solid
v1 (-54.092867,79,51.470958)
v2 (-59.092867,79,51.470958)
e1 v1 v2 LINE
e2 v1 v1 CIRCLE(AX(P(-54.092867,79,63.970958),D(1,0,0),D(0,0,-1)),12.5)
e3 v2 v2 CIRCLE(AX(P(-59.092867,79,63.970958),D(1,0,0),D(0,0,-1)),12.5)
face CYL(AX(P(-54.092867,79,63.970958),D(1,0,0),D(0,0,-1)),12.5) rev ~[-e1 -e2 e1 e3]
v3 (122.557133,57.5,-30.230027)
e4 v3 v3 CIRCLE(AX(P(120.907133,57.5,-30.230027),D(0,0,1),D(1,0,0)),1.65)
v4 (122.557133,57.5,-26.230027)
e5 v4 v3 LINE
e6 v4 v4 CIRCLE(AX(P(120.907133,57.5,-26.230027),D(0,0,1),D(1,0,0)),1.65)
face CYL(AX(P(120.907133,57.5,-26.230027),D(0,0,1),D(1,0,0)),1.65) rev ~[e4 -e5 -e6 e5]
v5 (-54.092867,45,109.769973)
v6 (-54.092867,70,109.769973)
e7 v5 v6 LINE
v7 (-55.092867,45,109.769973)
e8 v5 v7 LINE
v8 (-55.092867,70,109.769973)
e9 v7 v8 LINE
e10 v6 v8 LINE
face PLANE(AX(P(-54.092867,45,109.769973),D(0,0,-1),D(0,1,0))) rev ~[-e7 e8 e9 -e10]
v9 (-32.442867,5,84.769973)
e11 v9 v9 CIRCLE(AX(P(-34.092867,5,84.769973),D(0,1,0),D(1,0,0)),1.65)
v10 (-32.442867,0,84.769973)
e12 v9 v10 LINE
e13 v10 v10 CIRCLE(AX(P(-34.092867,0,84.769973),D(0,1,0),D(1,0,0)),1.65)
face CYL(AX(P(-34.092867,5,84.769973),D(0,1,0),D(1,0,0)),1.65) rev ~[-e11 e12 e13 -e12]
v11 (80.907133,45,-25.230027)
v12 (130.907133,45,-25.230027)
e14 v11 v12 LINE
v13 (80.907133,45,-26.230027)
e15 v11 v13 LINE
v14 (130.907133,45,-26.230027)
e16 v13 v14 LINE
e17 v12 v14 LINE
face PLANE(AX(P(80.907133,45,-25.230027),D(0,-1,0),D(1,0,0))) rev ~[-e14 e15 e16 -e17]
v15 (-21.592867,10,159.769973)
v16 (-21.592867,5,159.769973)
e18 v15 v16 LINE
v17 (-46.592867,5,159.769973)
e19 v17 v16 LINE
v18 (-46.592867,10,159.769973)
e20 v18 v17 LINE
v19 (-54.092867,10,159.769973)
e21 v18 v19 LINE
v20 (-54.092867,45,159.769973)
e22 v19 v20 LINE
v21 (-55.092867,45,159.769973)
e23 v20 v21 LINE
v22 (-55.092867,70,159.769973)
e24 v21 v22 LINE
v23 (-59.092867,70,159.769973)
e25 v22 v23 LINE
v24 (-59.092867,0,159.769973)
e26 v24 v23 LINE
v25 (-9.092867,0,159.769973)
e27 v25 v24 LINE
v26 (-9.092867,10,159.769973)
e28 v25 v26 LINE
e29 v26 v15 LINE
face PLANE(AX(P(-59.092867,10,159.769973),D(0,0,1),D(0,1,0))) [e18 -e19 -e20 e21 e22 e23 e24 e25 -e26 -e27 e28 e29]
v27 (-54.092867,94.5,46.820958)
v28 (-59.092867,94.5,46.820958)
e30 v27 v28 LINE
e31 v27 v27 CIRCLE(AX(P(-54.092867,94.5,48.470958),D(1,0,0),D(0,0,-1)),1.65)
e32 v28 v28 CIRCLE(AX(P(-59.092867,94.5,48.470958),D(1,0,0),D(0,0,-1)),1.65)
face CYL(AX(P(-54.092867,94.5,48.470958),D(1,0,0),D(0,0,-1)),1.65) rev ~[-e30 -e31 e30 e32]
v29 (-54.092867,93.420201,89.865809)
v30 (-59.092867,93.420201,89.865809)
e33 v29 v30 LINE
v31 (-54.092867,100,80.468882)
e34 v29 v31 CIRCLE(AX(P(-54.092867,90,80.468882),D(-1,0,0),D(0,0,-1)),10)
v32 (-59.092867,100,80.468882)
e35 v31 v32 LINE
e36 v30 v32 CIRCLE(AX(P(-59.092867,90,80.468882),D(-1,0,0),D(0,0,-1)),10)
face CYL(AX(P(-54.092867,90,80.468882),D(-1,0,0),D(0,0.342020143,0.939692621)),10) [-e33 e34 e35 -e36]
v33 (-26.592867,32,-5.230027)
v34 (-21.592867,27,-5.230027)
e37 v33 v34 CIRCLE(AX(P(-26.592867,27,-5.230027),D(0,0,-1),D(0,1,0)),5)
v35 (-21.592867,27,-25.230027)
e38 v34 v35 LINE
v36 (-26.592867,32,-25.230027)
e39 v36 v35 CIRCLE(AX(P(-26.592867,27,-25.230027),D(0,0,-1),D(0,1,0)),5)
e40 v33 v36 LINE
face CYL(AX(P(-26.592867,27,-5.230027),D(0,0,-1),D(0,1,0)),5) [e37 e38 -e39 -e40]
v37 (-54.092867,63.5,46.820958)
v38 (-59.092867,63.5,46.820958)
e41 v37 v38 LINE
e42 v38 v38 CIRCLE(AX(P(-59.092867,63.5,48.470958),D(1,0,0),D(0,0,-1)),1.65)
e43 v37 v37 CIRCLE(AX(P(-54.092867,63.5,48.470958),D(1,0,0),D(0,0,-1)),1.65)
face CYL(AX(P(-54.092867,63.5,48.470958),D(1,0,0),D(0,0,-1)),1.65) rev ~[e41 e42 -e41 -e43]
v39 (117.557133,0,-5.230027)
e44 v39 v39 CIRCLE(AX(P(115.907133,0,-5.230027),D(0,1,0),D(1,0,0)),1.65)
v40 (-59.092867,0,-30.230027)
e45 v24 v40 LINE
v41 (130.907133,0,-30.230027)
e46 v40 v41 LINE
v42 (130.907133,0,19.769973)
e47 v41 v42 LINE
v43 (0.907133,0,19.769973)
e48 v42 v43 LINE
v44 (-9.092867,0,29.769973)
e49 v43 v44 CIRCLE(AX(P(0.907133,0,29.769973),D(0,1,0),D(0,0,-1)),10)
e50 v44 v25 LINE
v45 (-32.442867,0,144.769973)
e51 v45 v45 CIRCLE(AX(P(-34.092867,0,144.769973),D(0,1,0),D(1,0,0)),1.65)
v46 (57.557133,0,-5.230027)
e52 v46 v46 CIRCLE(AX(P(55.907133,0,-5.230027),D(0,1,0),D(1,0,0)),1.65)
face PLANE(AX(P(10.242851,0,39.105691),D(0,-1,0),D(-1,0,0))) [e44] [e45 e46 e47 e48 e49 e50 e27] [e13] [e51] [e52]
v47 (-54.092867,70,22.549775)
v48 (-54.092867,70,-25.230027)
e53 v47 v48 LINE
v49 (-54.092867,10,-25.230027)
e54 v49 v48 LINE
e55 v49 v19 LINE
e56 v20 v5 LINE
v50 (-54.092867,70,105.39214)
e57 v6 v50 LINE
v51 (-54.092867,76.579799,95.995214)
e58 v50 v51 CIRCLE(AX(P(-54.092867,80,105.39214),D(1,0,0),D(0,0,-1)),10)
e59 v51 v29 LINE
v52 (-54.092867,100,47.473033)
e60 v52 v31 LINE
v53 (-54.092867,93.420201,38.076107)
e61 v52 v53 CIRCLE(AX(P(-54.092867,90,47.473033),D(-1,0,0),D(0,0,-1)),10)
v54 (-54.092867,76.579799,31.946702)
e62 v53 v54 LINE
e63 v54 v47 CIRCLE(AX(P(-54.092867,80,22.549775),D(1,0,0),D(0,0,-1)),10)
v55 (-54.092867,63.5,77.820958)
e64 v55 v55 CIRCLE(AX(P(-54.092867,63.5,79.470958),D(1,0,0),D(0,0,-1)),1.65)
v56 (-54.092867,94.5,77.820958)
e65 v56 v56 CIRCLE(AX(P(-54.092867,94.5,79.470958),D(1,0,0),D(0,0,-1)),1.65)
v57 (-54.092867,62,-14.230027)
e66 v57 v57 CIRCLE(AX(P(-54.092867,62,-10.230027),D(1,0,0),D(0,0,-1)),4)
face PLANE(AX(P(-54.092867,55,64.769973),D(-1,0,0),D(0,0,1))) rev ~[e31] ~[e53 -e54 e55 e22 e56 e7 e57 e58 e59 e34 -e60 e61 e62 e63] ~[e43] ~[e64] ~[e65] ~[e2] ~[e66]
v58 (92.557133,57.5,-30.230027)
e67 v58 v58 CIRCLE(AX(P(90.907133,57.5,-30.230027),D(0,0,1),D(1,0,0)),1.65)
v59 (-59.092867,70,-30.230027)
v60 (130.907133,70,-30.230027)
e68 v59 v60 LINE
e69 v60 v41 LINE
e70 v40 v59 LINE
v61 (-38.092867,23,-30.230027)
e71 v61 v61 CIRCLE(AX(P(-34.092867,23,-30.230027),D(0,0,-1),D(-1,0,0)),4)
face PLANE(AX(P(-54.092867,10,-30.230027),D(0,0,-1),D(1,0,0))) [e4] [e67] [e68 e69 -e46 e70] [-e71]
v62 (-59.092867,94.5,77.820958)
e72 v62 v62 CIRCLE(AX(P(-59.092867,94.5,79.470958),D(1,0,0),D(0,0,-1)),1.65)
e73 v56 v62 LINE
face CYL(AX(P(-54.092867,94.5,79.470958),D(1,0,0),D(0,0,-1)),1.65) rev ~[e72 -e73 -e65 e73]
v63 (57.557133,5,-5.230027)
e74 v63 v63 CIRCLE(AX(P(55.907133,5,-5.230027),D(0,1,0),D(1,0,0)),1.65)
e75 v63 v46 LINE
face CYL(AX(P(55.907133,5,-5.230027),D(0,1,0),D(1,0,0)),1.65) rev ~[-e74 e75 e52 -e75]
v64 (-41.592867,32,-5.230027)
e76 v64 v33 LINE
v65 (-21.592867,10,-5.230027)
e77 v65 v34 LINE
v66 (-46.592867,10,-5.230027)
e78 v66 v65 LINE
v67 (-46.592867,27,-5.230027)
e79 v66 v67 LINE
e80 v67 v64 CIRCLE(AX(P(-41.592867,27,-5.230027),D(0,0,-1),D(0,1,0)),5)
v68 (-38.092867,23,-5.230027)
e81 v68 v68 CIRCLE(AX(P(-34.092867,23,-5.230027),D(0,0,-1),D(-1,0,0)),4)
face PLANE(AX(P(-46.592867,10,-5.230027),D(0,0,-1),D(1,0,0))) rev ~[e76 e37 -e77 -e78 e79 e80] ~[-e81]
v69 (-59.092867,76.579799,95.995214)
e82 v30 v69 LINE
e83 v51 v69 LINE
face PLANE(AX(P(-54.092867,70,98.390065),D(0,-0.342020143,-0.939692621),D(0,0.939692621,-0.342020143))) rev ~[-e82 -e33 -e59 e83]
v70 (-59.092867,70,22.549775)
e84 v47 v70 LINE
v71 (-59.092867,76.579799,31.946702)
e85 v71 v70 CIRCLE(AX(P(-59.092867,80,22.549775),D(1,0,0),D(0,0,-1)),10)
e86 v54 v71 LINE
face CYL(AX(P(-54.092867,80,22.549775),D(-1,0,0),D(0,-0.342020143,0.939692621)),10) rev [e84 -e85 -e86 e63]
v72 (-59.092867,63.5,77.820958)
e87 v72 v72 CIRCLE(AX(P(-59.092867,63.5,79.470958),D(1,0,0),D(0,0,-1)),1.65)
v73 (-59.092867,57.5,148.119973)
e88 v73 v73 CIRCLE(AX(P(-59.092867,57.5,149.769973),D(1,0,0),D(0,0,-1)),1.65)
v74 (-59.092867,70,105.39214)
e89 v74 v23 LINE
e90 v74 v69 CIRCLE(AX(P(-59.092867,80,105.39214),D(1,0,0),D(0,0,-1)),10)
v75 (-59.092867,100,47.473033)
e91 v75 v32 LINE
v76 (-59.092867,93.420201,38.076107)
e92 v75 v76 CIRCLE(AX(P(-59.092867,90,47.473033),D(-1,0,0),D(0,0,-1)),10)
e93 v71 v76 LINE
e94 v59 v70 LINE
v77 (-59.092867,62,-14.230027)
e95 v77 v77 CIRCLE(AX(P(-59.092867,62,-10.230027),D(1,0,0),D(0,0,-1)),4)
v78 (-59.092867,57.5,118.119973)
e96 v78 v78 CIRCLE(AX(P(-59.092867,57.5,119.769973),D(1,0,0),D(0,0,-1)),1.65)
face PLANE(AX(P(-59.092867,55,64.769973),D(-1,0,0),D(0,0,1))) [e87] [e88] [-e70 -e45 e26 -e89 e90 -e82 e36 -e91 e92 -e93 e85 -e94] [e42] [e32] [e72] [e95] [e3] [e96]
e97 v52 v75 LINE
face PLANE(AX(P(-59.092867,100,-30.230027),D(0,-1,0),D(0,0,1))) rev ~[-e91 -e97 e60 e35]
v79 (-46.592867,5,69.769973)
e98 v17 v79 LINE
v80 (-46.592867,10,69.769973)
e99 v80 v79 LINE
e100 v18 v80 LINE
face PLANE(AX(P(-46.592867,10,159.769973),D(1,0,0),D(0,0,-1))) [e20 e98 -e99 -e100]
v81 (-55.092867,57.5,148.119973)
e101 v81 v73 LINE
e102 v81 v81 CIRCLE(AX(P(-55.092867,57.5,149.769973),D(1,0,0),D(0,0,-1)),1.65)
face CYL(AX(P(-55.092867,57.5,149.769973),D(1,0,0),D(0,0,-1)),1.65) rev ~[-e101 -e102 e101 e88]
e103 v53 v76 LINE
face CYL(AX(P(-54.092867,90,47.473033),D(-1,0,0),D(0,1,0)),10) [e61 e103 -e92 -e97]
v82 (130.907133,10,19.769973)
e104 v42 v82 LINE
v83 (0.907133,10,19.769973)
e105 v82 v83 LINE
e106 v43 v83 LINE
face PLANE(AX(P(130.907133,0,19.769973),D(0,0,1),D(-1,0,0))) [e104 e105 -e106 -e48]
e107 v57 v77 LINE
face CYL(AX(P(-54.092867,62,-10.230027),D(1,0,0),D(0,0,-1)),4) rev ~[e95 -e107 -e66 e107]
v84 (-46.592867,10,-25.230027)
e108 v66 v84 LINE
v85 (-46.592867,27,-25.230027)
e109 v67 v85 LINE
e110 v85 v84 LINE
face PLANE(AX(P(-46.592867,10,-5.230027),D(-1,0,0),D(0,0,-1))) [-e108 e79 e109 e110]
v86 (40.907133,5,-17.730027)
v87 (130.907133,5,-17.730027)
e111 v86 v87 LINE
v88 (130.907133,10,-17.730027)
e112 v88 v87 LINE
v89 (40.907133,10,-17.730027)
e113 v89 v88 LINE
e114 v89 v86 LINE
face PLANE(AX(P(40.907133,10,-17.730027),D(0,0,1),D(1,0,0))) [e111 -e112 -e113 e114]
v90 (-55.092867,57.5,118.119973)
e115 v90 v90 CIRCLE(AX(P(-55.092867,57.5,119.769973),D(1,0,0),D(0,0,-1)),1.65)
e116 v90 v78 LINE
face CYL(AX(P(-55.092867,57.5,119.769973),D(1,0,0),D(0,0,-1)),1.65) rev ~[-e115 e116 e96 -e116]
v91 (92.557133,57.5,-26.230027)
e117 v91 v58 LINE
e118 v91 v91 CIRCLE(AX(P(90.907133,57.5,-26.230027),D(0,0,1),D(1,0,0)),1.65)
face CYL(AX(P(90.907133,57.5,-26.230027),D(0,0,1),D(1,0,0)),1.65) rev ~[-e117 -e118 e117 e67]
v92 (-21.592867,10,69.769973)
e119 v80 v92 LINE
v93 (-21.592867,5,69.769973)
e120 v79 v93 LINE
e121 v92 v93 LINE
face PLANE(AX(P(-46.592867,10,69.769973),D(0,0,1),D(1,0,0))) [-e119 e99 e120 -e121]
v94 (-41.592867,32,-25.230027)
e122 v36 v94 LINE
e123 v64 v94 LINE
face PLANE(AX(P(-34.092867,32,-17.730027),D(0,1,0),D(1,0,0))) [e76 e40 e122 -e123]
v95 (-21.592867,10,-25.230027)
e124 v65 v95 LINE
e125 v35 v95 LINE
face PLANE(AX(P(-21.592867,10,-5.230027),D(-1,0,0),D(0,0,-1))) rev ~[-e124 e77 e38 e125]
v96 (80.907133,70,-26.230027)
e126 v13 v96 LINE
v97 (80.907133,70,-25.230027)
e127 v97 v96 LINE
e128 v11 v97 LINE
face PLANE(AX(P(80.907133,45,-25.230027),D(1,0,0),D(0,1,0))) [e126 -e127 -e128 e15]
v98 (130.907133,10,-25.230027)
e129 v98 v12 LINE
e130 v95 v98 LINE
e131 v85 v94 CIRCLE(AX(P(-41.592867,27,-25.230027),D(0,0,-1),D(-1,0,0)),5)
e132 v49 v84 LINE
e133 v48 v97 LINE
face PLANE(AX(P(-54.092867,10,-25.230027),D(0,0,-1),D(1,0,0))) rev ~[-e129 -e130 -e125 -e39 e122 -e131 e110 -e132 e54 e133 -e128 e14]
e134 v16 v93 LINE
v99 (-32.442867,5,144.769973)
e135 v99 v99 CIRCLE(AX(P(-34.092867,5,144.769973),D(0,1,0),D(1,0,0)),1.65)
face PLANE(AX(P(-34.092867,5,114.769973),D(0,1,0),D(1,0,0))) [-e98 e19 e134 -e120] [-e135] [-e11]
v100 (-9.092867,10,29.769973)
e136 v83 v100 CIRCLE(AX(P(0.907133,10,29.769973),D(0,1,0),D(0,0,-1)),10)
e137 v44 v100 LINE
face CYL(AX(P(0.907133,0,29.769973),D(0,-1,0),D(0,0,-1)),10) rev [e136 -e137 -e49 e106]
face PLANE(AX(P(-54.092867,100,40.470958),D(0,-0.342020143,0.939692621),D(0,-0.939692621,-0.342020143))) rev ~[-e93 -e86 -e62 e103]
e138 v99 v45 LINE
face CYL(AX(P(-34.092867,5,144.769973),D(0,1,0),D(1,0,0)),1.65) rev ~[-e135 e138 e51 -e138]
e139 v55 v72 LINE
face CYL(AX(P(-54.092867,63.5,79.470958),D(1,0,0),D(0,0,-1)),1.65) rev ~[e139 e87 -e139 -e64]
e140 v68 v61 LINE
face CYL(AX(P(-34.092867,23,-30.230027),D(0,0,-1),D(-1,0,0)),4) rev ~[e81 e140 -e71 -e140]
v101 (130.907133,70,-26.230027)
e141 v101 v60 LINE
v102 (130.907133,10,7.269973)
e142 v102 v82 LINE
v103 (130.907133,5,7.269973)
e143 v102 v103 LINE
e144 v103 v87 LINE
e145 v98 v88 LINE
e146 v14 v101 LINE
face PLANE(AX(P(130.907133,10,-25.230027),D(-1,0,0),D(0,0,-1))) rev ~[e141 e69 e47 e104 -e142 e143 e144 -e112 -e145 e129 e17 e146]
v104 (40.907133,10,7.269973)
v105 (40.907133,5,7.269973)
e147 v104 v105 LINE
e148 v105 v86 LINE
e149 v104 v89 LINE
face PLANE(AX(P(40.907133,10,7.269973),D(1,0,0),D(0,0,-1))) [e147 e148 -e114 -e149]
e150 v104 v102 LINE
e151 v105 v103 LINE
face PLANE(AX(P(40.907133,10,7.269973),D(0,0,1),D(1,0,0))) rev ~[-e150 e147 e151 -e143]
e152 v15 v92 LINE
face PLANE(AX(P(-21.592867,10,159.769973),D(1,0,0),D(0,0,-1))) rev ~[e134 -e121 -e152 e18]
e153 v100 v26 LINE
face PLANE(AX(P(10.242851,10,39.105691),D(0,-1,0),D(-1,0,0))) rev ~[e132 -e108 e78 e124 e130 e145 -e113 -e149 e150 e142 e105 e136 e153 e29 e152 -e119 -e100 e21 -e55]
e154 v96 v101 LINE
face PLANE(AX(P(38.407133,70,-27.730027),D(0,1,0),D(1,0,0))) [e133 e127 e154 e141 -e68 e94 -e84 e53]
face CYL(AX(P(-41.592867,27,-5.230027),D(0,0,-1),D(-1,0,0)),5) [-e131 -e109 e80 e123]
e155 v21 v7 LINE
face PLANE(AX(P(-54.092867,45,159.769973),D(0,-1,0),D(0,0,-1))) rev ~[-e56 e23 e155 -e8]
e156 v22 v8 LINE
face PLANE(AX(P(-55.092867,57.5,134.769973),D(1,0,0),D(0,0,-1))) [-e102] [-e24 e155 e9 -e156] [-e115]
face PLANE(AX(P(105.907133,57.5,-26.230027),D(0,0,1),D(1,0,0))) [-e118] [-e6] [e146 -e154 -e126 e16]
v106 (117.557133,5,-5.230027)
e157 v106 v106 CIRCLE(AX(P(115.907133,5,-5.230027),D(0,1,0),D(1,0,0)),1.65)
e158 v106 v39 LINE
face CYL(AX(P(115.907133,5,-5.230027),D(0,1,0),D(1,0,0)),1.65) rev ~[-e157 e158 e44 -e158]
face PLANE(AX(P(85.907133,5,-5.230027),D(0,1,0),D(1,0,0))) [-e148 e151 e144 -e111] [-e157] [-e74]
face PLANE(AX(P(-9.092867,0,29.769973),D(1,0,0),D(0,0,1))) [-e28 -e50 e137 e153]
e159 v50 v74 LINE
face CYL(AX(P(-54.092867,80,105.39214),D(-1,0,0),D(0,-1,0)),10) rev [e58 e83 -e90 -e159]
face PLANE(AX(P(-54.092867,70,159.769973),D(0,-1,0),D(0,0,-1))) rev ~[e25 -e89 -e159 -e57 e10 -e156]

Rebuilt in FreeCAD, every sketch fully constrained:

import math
import FreeCAD as App
import Part
import Sketcher
Q = App.Units.Quantity


def edges_at(feature, points):
    """Names of the edges that pass closest to the given points."""
    edges = feature.Shape.Edges
    near = lambda p: min(range(len(edges)), key=lambda i: edges[i].distToShape(Part.Vertex(*p))[0])
    return sorted({f"Edge{near(p) + 1}" for p in points})

doc = App.newDocument("Part")
params = doc.addObject("Spreadsheet::Sheet", "Params")
for row, (alias, value) in enumerate([
    ("sketch1_radius", "10 mm"),
    ("sketch1_width", "190 mm"),
    ("sketch1_width2", "50 mm"),
    ("pad1_length", "10 mm"),
    ("sketch2_width", "90 mm"),
    ("sketch2_width2", "25 mm"),
    ("pocket1_length", "5 mm"),
    ("sketch3_diameter", "3.3 mm"),
    ("sketch4_width", "25 mm"),
    ("pad2_length", "22 mm"),
    ("sketch5_diameter", "8 mm"),
    ("fillet_radius", "5 mm"),
    ("sketch6_width", "90 mm"),
    ("sketch6_height", "190 mm"),
    ("pad3_length", "5 mm"),
    ("sketch7_diameter", "8 mm"),
    ("sketch7_diameter2", "25 mm"),
    ("sketch7_diameter3", "3.3 mm"),
    ("sketch8_width", "185 mm"),
    ("sketch8_height", "5 mm"),
    ("pad4_length", "60 mm"),
    ("sketch9_diameter", "8 mm"),
    ("sketch10_width", "30 mm"),
    ("fillet2_radius", "10 mm"),
    ("sketch11_width", "50 mm"),
    ("sketch11_height", "25 mm"),
    ("pocket7_length", "1 mm"),
    ("sketch12_diameter", "3.3 mm"),
    ("sketch13_width", "25 mm"),
    ("sketch13_height", "50 mm"),
    ("pocket9_length", "1 mm"),
    ("sketch14_diameter", "3.3 mm"),
], start=1):
    params.set(f"A{row}", alias)
    params.set(f"B{row}", "=" + value)
    params.setAlias(f"B{row}", alias)

body = doc.addObject("PartDesign::Body", "Body")

# Sketch on XZ plane
sketch1 = body.newObject("Sketcher::SketchObject", "Sketch")
sketch1.AttachmentSupport = (doc.getObject("XZ_Plane"), [""])
sketch1.MapMode = "FlatFace"
sketch1.addGeometry([
    Part.LineSegment(App.Vector(131, -30, 0), App.Vector(-59, -30, 0)),  # 0
    Part.LineSegment(App.Vector(-59, -30, 0), App.Vector(-59, 160, 0)),  # 1
    Part.LineSegment(App.Vector(-59, 160, 0), App.Vector(-9, 160, 0)),  # 2
    Part.LineSegment(App.Vector(-9, 160, 0), App.Vector(-9, 30, 0)),  # 3
    Part.ArcOfCircle(Part.Circle(App.Vector(1, 30, 0), App.Vector(0, 0, 1), 10), math.radians(-180), math.radians(-90)),  # 4
    Part.LineSegment(App.Vector(1, 20, 0), App.Vector(131, 20, 0)),  # 5
    Part.LineSegment(App.Vector(131, 20, 0), App.Vector(131, -30, 0)),  # 6
], False)
sketch1.addConstraint([
    Sketcher.Constraint("Coincident", 0, 2, 1, 1),
    Sketcher.Constraint("Coincident", 1, 2, 2, 1),
    Sketcher.Constraint("Coincident", 2, 2, 3, 1),
    Sketcher.Constraint("Tangent", 3, 2, 4, 1),
    Sketcher.Constraint("Tangent", 4, 2, 5, 1),
    Sketcher.Constraint("Coincident", 5, 2, 6, 1),
    Sketcher.Constraint("Coincident", 6, 2, 0, 1),
    Sketcher.Constraint("Horizontal", 0),
    Sketcher.Constraint("Vertical", 1),
    Sketcher.Constraint("Horizontal", 2),
    Sketcher.Constraint("Vertical", 3),
    Sketcher.Constraint("Horizontal", 5),
    Sketcher.Constraint("Vertical", 6),
    Sketcher.Constraint("Equal", 0, 1),
    Sketcher.Constraint("Equal", 5, 3),
    Sketcher.Constraint("Radius", 4, Q("10 mm")),
    Sketcher.Constraint("DistanceX", 0, 2, 0, 1, Q("190 mm")),
    Sketcher.Constraint("DistanceX", 2, 1, 2, 2, Q("50 mm")),
    Sketcher.Constraint("DistanceX", -1, 1, 4, 3, Q("0.907133 mm")),
    Sketcher.Constraint("DistanceY", -1, 1, 4, 3, Q("29.769973 mm")),
])
sketch1.setExpression("Constraints[15]", "Params.sketch1_radius")
sketch1.setExpression("Constraints[16]", "Params.sketch1_width")
sketch1.setExpression("Constraints[17]", "Params.sketch1_width2")
pad1 = body.newObject("PartDesign::Pad", "Pad")
pad1.Profile = sketch1
pad1.setExpression("Length", "Params.pad1_length")
pad1.Reversed = True

# Sketch on XZ plane
sketch2 = body.newObject("Sketcher::SketchObject", "Sketch001")
sketch2.AttachmentSupport = (doc.getObject("XZ_Plane"), [""])
sketch2.MapMode = "FlatFace"
sketch2.AttachmentOffset = App.Placement(App.Vector(0, 0, -10), App.Rotation())
sketch2.addGeometry([
    Part.LineSegment(App.Vector(41, -18, 0), App.Vector(41, 7, 0)),  # 0
    Part.LineSegment(App.Vector(41, 7, 0), App.Vector(131, 7, 0)),  # 1
    Part.LineSegment(App.Vector(131, 7, 0), App.Vector(131, -18, 0)),  # 2
    Part.LineSegment(App.Vector(131, -18, 0), App.Vector(41, -18, 0)),  # 3
    Part.LineSegment(App.Vector(-47, 70, 0), App.Vector(-47, 160, 0)),  # 4
    Part.LineSegment(App.Vector(-47, 160, 0), App.Vector(-22, 160, 0)),  # 5
    Part.LineSegment(App.Vector(-22, 160, 0), App.Vector(-22, 70, 0)),  # 6
    Part.LineSegment(App.Vector(-22, 70, 0), App.Vector(-47, 70, 0)),  # 7
], False)
sketch2.addConstraint([
    Sketcher.Constraint("Coincident", 0, 2, 1, 1),
    Sketcher.Constraint("Coincident", 1, 2, 2, 1),
    Sketcher.Constraint("Coincident", 2, 2, 3, 1),
    Sketcher.Constraint("Coincident", 3, 2, 0, 1),
    Sketcher.Constraint("Coincident", 4, 2, 5, 1),
    Sketcher.Constraint("Coincident", 5, 2, 6, 1),
    Sketcher.Constraint("Coincident", 6, 2, 7, 1),
    Sketcher.Constraint("Coincident", 7, 2, 4, 1),
    Sketcher.Constraint("Vertical", 0),
    Sketcher.Constraint("Horizontal", 1),
    Sketcher.Constraint("Vertical", 2),
    Sketcher.Constraint("Horizontal", 3),
    Sketcher.Constraint("Vertical", 4),
    Sketcher.Constraint("Horizontal", 5),
    Sketcher.Constraint("Vertical", 6),
    Sketcher.Constraint("Horizontal", 7),
    Sketcher.Constraint("Equal", 7, 0),
    Sketcher.Constraint("Equal", 3, 4),
    Sketcher.Constraint("DistanceX", 1, 1, 1, 2, Q("90 mm")),
    Sketcher.Constraint("DistanceX", 5, 1, 5, 2, Q("25 mm")),
    Sketcher.Constraint("DistanceX", 4, 2, 0, 2, Q("87.5 mm")),
    Sketcher.Constraint("DistanceY", 0, 2, 4, 2, Q("152.5 mm")),
    Sketcher.Constraint("DistanceX", -1, 1, 0, 2, Q("40.907133 mm")),
    Sketcher.Constraint("DistanceY", -1, 1, 0, 2, Q("7.269973 mm")),
])
sketch2.setExpression("Constraints[18]", "Params.sketch2_width")
sketch2.setExpression("Constraints[19]", "Params.sketch2_width2")
pocket1 = body.newObject("PartDesign::Pocket", "Pocket")
pocket1.Profile = sketch2
pocket1.setExpression("Length", "Params.pocket1_length")
pocket1.Reversed = True

# Sketch on XZ plane
sketch3 = body.newObject("Sketcher::SketchObject", "Sketch002")
sketch3.AttachmentSupport = (doc.getObject("XZ_Plane"), [""])
sketch3.MapMode = "FlatFace"
sketch3.AttachmentOffset = App.Placement(App.Vector(0, 0, -5), App.Rotation())
sketch3.addGeometry([
    Part.Circle(App.Vector(55.9, -5.2, 0), App.Vector(0, 0, 1), 1.6),
    Part.Circle(App.Vector(115.9, -5.2, 0), App.Vector(0, 0, 1), 1.6),
    Part.Circle(App.Vector(-34.1, 84.8, 0), App.Vector(0, 0, 1), 1.6),
    Part.Circle(App.Vector(-34.1, 144.8, 0), App.Vector(0, 0, 1), 1.6),
], False)
sketch3.addConstraint([
    Sketcher.Constraint("Equal", 0, 1),
    Sketcher.Constraint("Equal", 1, 2),
    Sketcher.Constraint("Equal", 2, 3),
    Sketcher.Constraint("Horizontal", 0, 3, 1, 3),
    Sketcher.Constraint("Vertical", 2, 3, 3, 3),
    Sketcher.Constraint("Diameter", 0, Q("3.3 mm")),
    Sketcher.Constraint("DistanceX", 0, 3, 1, 3, Q("60 mm")),
    Sketcher.Constraint("DistanceX", 2, 3, 0, 3, Q("90 mm")),
    Sketcher.Constraint("DistanceY", 0, 3, 2, 3, Q("90 mm")),
    Sketcher.Constraint("DistanceY", 2, 3, 3, 3, Q("60 mm")),
    Sketcher.Constraint("DistanceX", -1, 1, 0, 3, Q("55.907133 mm")),
    Sketcher.Constraint("DistanceY", 0, 3, -1, 1, Q("5.230027 mm")),
])
sketch3.setExpression("Constraints[5]", "Params.sketch3_diameter")
pocket2 = body.newObject("PartDesign::Pocket", "Pocket001")
pocket2.Profile = sketch3
pocket2.Type = "ThroughAll"
pocket2.Reversed = True

# Sketch on XZ plane
sketch4 = body.newObject("Sketcher::SketchObject", "Sketch003")
sketch4.AttachmentSupport = (doc.getObject("XZ_Plane"), [""])
sketch4.MapMode = "FlatFace"
sketch4.AttachmentOffset = App.Placement(App.Vector(0, 0, -10), App.Rotation())
sketch4.addGeometry([
    Part.LineSegment(App.Vector(-47, -30, 0), App.Vector(-47, -5, 0)),
    Part.LineSegment(App.Vector(-47, -5, 0), App.Vector(-22, -5, 0)),
    Part.LineSegment(App.Vector(-22, -5, 0), App.Vector(-22, -30, 0)),
    Part.LineSegment(App.Vector(-22, -30, 0), App.Vector(-47, -30, 0)),
], False)
sketch4.addConstraint([
    Sketcher.Constraint("Coincident", 0, 2, 1, 1),
    Sketcher.Constraint("Coincident", 1, 2, 2, 1),
    Sketcher.Constraint("Coincident", 2, 2, 3, 1),
    Sketcher.Constraint("Coincident", 3, 2, 0, 1),
    Sketcher.Constraint("Vertical", 0),
    Sketcher.Constraint("Horizontal", 1),
    Sketcher.Constraint("Vertical", 2),
    Sketcher.Constraint("Horizontal", 3),
    Sketcher.Constraint("Equal", 3, 0),
    Sketcher.Constraint("DistanceX", 1, 1, 1, 2, Q("25 mm")),
    Sketcher.Constraint("DistanceX", 0, 2, -1, 1, Q("46.592867 mm")),
    Sketcher.Constraint("DistanceY", 0, 2, -1, 1, Q("5.230027 mm")),
])
sketch4.setExpression("Constraints[9]", "Params.sketch4_width")
pad2 = body.newObject("PartDesign::Pad", "Pad001")
pad2.Profile = sketch4
pad2.setExpression("Length", "Params.pad2_length")
pad2.Reversed = True

# Sketch on XY plane
sketch5 = body.newObject("Sketcher::SketchObject", "Sketch004")
sketch5.AttachmentSupport = (doc.getObject("XY_Plane"), [""])
sketch5.MapMode = "FlatFace"
sketch5.AttachmentOffset = App.Placement(App.Vector(0, 0, -30.230027), App.Rotation())
sketch5.addGeometry(Part.Circle(App.Vector(-34.1, 23, 0), App.Vector(0, 0, 1), 4), False)
sketch5.addConstraint([
    Sketcher.Constraint("Diameter", 0, Q("8 mm")),
    Sketcher.Constraint("DistanceY", -1, 1, 0, 3, Q("23 mm")),
    Sketcher.Constraint("DistanceX", 0, 3, -1, 1, Q("34.092867 mm")),
])
sketch5.setExpression("Constraints[0]", "Params.sketch5_diameter")
pocket3 = body.newObject("PartDesign::Pocket", "Pocket002")
pocket3.Profile = sketch5
pocket3.Type = "ThroughAll"
pocket3.Reversed = True
doc.recompute()

fillet = body.newObject("PartDesign::Fillet", "Fillet")
fillet.Base = (pocket3, edges_at(pocket3, [(-46.593, 32, -17.73), (-21.593, 32, -17.73)]))
fillet.setExpression("Radius", "Params.fillet_radius")

# Sketch on YZ plane
sketch6 = body.newObject("Sketcher::SketchObject", "Sketch005")
sketch6.AttachmentSupport = (doc.getObject("YZ_Plane"), [""])
sketch6.MapMode = "FlatFace"
sketch6.AttachmentOffset = App.Placement(App.Vector(0, 0, -59.092867), App.Rotation())
sketch6.addGeometry([
    Part.LineSegment(App.Vector(100, -30, 0), App.Vector(10, -30, 0)),
    Part.LineSegment(App.Vector(10, -30, 0), App.Vector(10, 160, 0)),
    Part.LineSegment(App.Vector(10, 160, 0), App.Vector(100, 160, 0)),
    Part.LineSegment(App.Vector(100, 160, 0), App.Vector(100, -30, 0)),
], False)
sketch6.addConstraint([
    Sketcher.Constraint("Coincident", 0, 2, 1, 1),
    Sketcher.Constraint("Coincident", 1, 2, 2, 1),
    Sketcher.Constraint("Coincident", 2, 2, 3, 1),
    Sketcher.Constraint("Coincident", 3, 2, 0, 1),
    Sketcher.Constraint("Horizontal", 0),
    Sketcher.Constraint("Vertical", 1),
    Sketcher.Constraint("Horizontal", 2),
    Sketcher.Constraint("Vertical", 3),
    Sketcher.Constraint("DistanceX", 0, 2, 0, 1, Q("90 mm")),
    Sketcher.Constraint("DistanceY", 1, 1, 1, 2, Q("190 mm")),
    Sketcher.Constraint("DistanceX", -1, 1, 0, 2, Q("10 mm")),
    Sketcher.Constraint("DistanceY", 0, 2, -1, 1, Q("30.230027 mm")),
])
sketch6.setExpression("Constraints[8]", "Params.sketch6_width")
sketch6.setExpression("Constraints[9]", "Params.sketch6_height")
pad3 = body.newObject("PartDesign::Pad", "Pad002")
pad3.Profile = sketch6
pad3.setExpression("Length", "Params.pad3_length")

# Sketch on YZ plane
sketch7 = body.newObject("Sketcher::SketchObject", "Sketch006")
sketch7.AttachmentSupport = (doc.getObject("YZ_Plane"), [""])
sketch7.MapMode = "FlatFace"
sketch7.AttachmentOffset = App.Placement(App.Vector(0, 0, -54.092867), App.Rotation())
sketch7.addGeometry([
    Part.Circle(App.Vector(62, -10.2, 0), App.Vector(0, 0, 1), 4),  # 0
    Part.Circle(App.Vector(79, 64, 0), App.Vector(0, 0, 1), 12.5),  # 1
    Part.Circle(App.Vector(94.5, 79.5, 0), App.Vector(0, 0, 1), 1.6),  # 2
    Part.Circle(App.Vector(94.5, 48.5, 0), App.Vector(0, 0, 1), 1.6),  # 3
    Part.Circle(App.Vector(63.5, 48.5, 0), App.Vector(0, 0, 1), 1.6),  # 4
    Part.Circle(App.Vector(63.5, 79.5, 0), App.Vector(0, 0, 1), 1.6),  # 5
], False)
sketch7.addConstraint([
    Sketcher.Constraint("Equal", 2, 3),
    Sketcher.Constraint("Equal", 3, 4),
    Sketcher.Constraint("Equal", 4, 5),
    Sketcher.Constraint("Horizontal", 3, 3, 4, 3),
    Sketcher.Constraint("Horizontal", 2, 3, 5, 3),
    Sketcher.Constraint("Vertical", 2, 3, 3, 3),
    Sketcher.Constraint("Vertical", 4, 3, 5, 3),
    Sketcher.Constraint("Diameter", 0, Q("8 mm")),
    Sketcher.Constraint("Diameter", 1, Q("25 mm")),
    Sketcher.Constraint("Diameter", 2, Q("3.3 mm")),
    Sketcher.Constraint("DistanceX", -1, 1, 0, 3, Q("62 mm")),
    Sketcher.Constraint("DistanceX", -1, 1, 1, 3, Q("79 mm")),
    Sketcher.Constraint("DistanceY", 3, 3, 2, 3, Q("31 mm")),
    Sketcher.Constraint("DistanceX", 4, 3, 3, 3, Q("31 mm")),
    Sketcher.Constraint("DistanceX", -1, 1, 2, 3, Q("94.5 mm")),
    Sketcher.Constraint("DistanceY", 1, 3, 2, 3, Q("15.5 mm")),
    Sketcher.Constraint("DistanceY", 0, 3, -1, 1, Q("10.230027 mm")),
    Sketcher.Constraint("DistanceY", -1, 1, 1, 3, Q("63.970958 mm")),
])
sketch7.setExpression("Constraints[7]", "Params.sketch7_diameter")
sketch7.setExpression("Constraints[8]", "Params.sketch7_diameter2")
sketch7.setExpression("Constraints[9]", "Params.sketch7_diameter3")
pocket4 = body.newObject("PartDesign::Pocket", "Pocket003")
pocket4.Profile = sketch7
pocket4.Type = "ThroughAll"

# Sketch on XZ plane
sketch8 = body.newObject("Sketcher::SketchObject", "Sketch007")
sketch8.AttachmentSupport = (doc.getObject("XZ_Plane"), [""])
sketch8.MapMode = "FlatFace"
sketch8.AttachmentOffset = App.Placement(App.Vector(0, 0, -10), App.Rotation())
sketch8.addGeometry([
    Part.LineSegment(App.Vector(-54, -30, 0), App.Vector(-54, -25, 0)),
    Part.LineSegment(App.Vector(-54, -25, 0), App.Vector(131, -25, 0)),
    Part.LineSegment(App.Vector(131, -25, 0), App.Vector(131, -30, 0)),
    Part.LineSegment(App.Vector(131, -30, 0), App.Vector(-54, -30, 0)),
], False)
sketch8.addConstraint([
    Sketcher.Constraint("Coincident", 0, 2, 1, 1),
    Sketcher.Constraint("Coincident", 1, 2, 2, 1),
    Sketcher.Constraint("Coincident", 2, 2, 3, 1),
    Sketcher.Constraint("Coincident", 3, 2, 0, 1),
    Sketcher.Constraint("Vertical", 0),
    Sketcher.Constraint("Horizontal", 1),
    Sketcher.Constraint("Vertical", 2),
    Sketcher.Constraint("Horizontal", 3),
    Sketcher.Constraint("DistanceX", 1, 1, 1, 2, Q("185 mm")),
    Sketcher.Constraint("DistanceY", 0, 1, 0, 2, Q("5 mm")),
    Sketcher.Constraint("DistanceX", 0, 2, -1, 1, Q("54.092867 mm")),
    Sketcher.Constraint("DistanceY", 0, 2, -1, 1, Q("25.230027 mm")),
])
sketch8.setExpression("Constraints[8]", "Params.sketch8_width")
sketch8.setExpression("Constraints[9]", "Params.sketch8_height")
pad4 = body.newObject("PartDesign::Pad", "Pad003")
pad4.Profile = sketch8
pad4.setExpression("Length", "Params.pad4_length")
pad4.Reversed = True

# Sketch on XY plane
sketch9 = body.newObject("Sketcher::SketchObject", "Sketch008")
sketch9.AttachmentSupport = (doc.getObject("XY_Plane"), [""])
sketch9.MapMode = "FlatFace"
sketch9.AttachmentOffset = App.Placement(App.Vector(0, 0, -30.230027), App.Rotation())
sketch9.addGeometry(Part.Circle(App.Vector(-34.1, 23, 0), App.Vector(0, 0, 1), 4), False)
sketch9.addConstraint([
    Sketcher.Constraint("Diameter", 0, Q("8 mm")),
    Sketcher.Constraint("DistanceY", -1, 1, 0, 3, Q("23 mm")),
    Sketcher.Constraint("DistanceX", 0, 3, -1, 1, Q("34.092867 mm")),
])
sketch9.setExpression("Constraints[0]", "Params.sketch9_diameter")
pocket5 = body.newObject("PartDesign::Pocket", "Pocket004")
pocket5.Profile = sketch9
pocket5.Type = "ThroughAll"
pocket5.Reversed = True

# Sketch on YZ plane
sketch10 = body.newObject("Sketcher::SketchObject", "Sketch009")
sketch10.AttachmentSupport = (doc.getObject("YZ_Plane"), [""])
sketch10.MapMode = "FlatFace"
sketch10.AttachmentOffset = App.Placement(App.Vector(0, 0, -54.092867), App.Rotation())
sketch10.addGeometry([
    Part.LineSegment(App.Vector(70, 160, 0), App.Vector(70, 98, 0)),  # 0
    Part.LineSegment(App.Vector(70, 98, 0), App.Vector(100, 87, 0)),  # 1
    Part.LineSegment(App.Vector(100, 87, 0), App.Vector(100, 160, 0)),  # 2
    Part.LineSegment(App.Vector(100, 160, 0), App.Vector(70, 160, 0)),  # 3
    Part.LineSegment(App.Vector(100, 40, 0), App.Vector(70, 30, 0)),  # 4
    Part.LineSegment(App.Vector(70, 30, 0), App.Vector(70, -30, 0)),  # 5
    Part.LineSegment(App.Vector(70, -30, 0), App.Vector(100, -30, 0)),  # 6
    Part.LineSegment(App.Vector(100, -30, 0), App.Vector(100, 40, 0)),  # 7
], False)
sketch10.addConstraint([
    Sketcher.Constraint("Coincident", 0, 2, 1, 1),
    Sketcher.Constraint("Coincident", 1, 2, 2, 1),
    Sketcher.Constraint("Coincident", 2, 2, 3, 1),
    Sketcher.Constraint("Coincident", 3, 2, 0, 1),
    Sketcher.Constraint("Coincident", 4, 2, 5, 1),
    Sketcher.Constraint("Coincident", 5, 2, 6, 1),
    Sketcher.Constraint("Coincident", 6, 2, 7, 1),
    Sketcher.Constraint("Coincident", 7, 2, 4, 1),
    Sketcher.Constraint("Vertical", 0),
    Sketcher.Constraint("Vertical", 2),
    Sketcher.Constraint("Horizontal", 3),
    Sketcher.Constraint("Vertical", 5),
    Sketcher.Constraint("Horizontal", 6),
    Sketcher.Constraint("Vertical", 7),
    Sketcher.Constraint("Vertical", 3, 2, 4, 2),
    Sketcher.Constraint("Vertical", 2, 2, 6, 2),
    Sketcher.Constraint("Equal", 1, 4),
    Sketcher.Constraint("DistanceX", 3, 2, 3, 1, Q("30 mm")),
    Sketcher.Constraint("Angle", 1, Q("-20 deg")),
    Sketcher.Constraint("DistanceX", -1, 1, 0, 2, Q("70 mm")),
    Sketcher.Constraint("DistanceY", 5, 2, 3, 2, Q("190 mm")),
    Sketcher.Constraint("DistanceY", 7, 2, 1, 2, Q("47 mm")),
    Sketcher.Constraint("DistanceY", 5, 2, 5, 1, Q("59.781878 mm")),
    Sketcher.Constraint("DistanceY", -1, 1, 4, 2, Q("29.551851 mm")),
])
sketch10.setExpression("Constraints[17]", "Params.sketch10_width")
pocket6 = body.newObject("PartDesign::Pocket", "Pocket005")
pocket6.Profile = sketch10
pocket6.Type = "ThroughAll"
doc.recompute()

fillet2 = body.newObject("PartDesign::Fillet", "Fillet001")
fillet2.Base = (pocket6, edges_at(pocket6, [
    (-56.593, 100, 87.471),
    (-56.593, 70, 98.39),
    (-56.593, 100, 40.471),
    (-56.593, 70, 29.552),
]))
fillet2.setExpression("Radius", "Params.fillet2_radius")

# Sketch on XY plane
sketch11 = body.newObject("Sketcher::SketchObject", "Sketch010")
sketch11.AttachmentSupport = (doc.getObject("XY_Plane"), [""])
sketch11.MapMode = "FlatFace"
sketch11.AttachmentOffset = App.Placement(App.Vector(0, 0, -25.230027), App.Rotation())
sketch11.addGeometry([
    Part.LineSegment(App.Vector(81, 70, 0), App.Vector(81, 45, 0)),
    Part.LineSegment(App.Vector(81, 45, 0), App.Vector(131, 45, 0)),
    Part.LineSegment(App.Vector(131, 45, 0), App.Vector(131, 70, 0)),
    Part.LineSegment(App.Vector(131, 70, 0), App.Vector(81, 70, 0)),
], False)
sketch11.addConstraint([
    Sketcher.Constraint("Coincident", 0, 2, 1, 1),
    Sketcher.Constraint("Coincident", 1, 2, 2, 1),
    Sketcher.Constraint("Coincident", 2, 2, 3, 1),
    Sketcher.Constraint("Coincident", 3, 2, 0, 1),
    Sketcher.Constraint("Vertical", 0),
    Sketcher.Constraint("Horizontal", 1),
    Sketcher.Constraint("Vertical", 2),
    Sketcher.Constraint("Horizontal", 3),
    Sketcher.Constraint("DistanceX", 1, 1, 1, 2, Q("50 mm")),
    Sketcher.Constraint("DistanceY", 0, 2, 0, 1, Q("25 mm")),
    Sketcher.Constraint("DistanceY", -1, 1, 0, 2, Q("45 mm")),
    Sketcher.Constraint("DistanceX", -1, 1, 0, 2, Q("80.907133 mm")),
])
sketch11.setExpression("Constraints[8]", "Params.sketch11_width")
sketch11.setExpression("Constraints[9]", "Params.sketch11_height")
pocket7 = body.newObject("PartDesign::Pocket", "Pocket006")
pocket7.Profile = sketch11
pocket7.setExpression("Length", "Params.pocket7_length")

# Sketch on XY plane
sketch12 = body.newObject("Sketcher::SketchObject", "Sketch011")
sketch12.AttachmentSupport = (doc.getObject("XY_Plane"), [""])
sketch12.MapMode = "FlatFace"
sketch12.AttachmentOffset = App.Placement(App.Vector(0, 0, -26.230027), App.Rotation())
sketch12.addGeometry([
    Part.Circle(App.Vector(90.9, 57.5, 0), App.Vector(0, 0, 1), 1.6),
    Part.Circle(App.Vector(120.9, 57.5, 0), App.Vector(0, 0, 1), 1.6),
], False)
sketch12.addConstraint([
    Sketcher.Constraint("Equal", 0, 1),
    Sketcher.Constraint("Horizontal", 0, 3, 1, 3),
    Sketcher.Constraint("Diameter", 0, Q("3.3 mm")),
    Sketcher.Constraint("DistanceX", 0, 3, 1, 3, Q("30 mm")),
    Sketcher.Constraint("DistanceY", -1, 1, 0, 3, Q("57.5 mm")),
    Sketcher.Constraint("DistanceX", -1, 1, 0, 3, Q("90.907133 mm")),
])
sketch12.setExpression("Constraints[2]", "Params.sketch12_diameter")
pocket8 = body.newObject("PartDesign::Pocket", "Pocket007")
pocket8.Profile = sketch12
pocket8.Type = "ThroughAll"

# Sketch on YZ plane
sketch13 = body.newObject("Sketcher::SketchObject", "Sketch012")
sketch13.AttachmentSupport = (doc.getObject("YZ_Plane"), [""])
sketch13.MapMode = "FlatFace"
sketch13.AttachmentOffset = App.Placement(App.Vector(0, 0, -54.092867), App.Rotation())
sketch13.addGeometry([
    Part.LineSegment(App.Vector(70, 160, 0), App.Vector(45, 160, 0)),
    Part.LineSegment(App.Vector(45, 160, 0), App.Vector(45, 110, 0)),
    Part.LineSegment(App.Vector(45, 110, 0), App.Vector(70, 110, 0)),
    Part.LineSegment(App.Vector(70, 110, 0), App.Vector(70, 160, 0)),
], False)
sketch13.addConstraint([
    Sketcher.Constraint("Coincident", 0, 2, 1, 1),
    Sketcher.Constraint("Coincident", 1, 2, 2, 1),
    Sketcher.Constraint("Coincident", 2, 2, 3, 1),
    Sketcher.Constraint("Coincident", 3, 2, 0, 1),
    Sketcher.Constraint("Horizontal", 0),
    Sketcher.Constraint("Vertical", 1),
    Sketcher.Constraint("Horizontal", 2),
    Sketcher.Constraint("Vertical", 3),
    Sketcher.Constraint("DistanceX", 0, 2, 0, 1, Q("25 mm")),
    Sketcher.Constraint("DistanceY", 1, 2, 1, 1, Q("50 mm")),
    Sketcher.Constraint("DistanceX", -1, 1, 0, 2, Q("45 mm")),
    Sketcher.Constraint("DistanceY", -1, 1, 0, 2, Q("159.769973 mm")),
])
sketch13.setExpression("Constraints[8]", "Params.sketch13_width")
sketch13.setExpression("Constraints[9]", "Params.sketch13_height")
pocket9 = body.newObject("PartDesign::Pocket", "Pocket008")
pocket9.Profile = sketch13
pocket9.setExpression("Length", "Params.pocket9_length")

# Sketch on YZ plane
sketch14 = body.newObject("Sketcher::SketchObject", "Sketch013")
sketch14.AttachmentSupport = (doc.getObject("YZ_Plane"), [""])
sketch14.MapMode = "FlatFace"
sketch14.AttachmentOffset = App.Placement(App.Vector(0, 0, -55.092867), App.Rotation())
sketch14.addGeometry([
    Part.Circle(App.Vector(57.5, 149.8, 0), App.Vector(0, 0, 1), 1.6),
    Part.Circle(App.Vector(57.5, 119.8, 0), App.Vector(0, 0, 1), 1.6),
], False)
sketch14.addConstraint([
    Sketcher.Constraint("Equal", 0, 1),
    Sketcher.Constraint("Vertical", 0, 3, 1, 3),
    Sketcher.Constraint("Diameter", 0, Q("3.3 mm")),
    Sketcher.Constraint("DistanceY", 1, 3, 0, 3, Q("30 mm")),
    Sketcher.Constraint("DistanceX", -1, 1, 0, 3, Q("57.5 mm")),
    Sketcher.Constraint("DistanceY", -1, 1, 0, 3, Q("149.769973 mm")),
])
sketch14.setExpression("Constraints[2]", "Params.sketch14_diameter")
pocket10 = body.newObject("PartDesign::Pocket", "Pocket009")
pocket10.Profile = sketch14
pocket10.Type = "ThroughAll"

doc.recompute()
